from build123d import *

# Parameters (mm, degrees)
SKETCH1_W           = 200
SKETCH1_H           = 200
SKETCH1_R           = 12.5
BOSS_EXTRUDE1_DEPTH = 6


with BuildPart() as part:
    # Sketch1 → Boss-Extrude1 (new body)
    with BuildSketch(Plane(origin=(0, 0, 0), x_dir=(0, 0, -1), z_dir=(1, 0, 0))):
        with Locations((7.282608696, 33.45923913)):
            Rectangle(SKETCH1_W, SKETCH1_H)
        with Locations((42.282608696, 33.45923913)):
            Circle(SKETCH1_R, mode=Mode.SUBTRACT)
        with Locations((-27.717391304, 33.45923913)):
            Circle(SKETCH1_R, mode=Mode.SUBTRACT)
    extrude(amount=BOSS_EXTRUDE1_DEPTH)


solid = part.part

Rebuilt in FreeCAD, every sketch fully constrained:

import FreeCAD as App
import Part
import Sketcher

doc = App.newDocument("Part")
params = doc.addObject("Spreadsheet::Sheet", "Params")
for row, (alias, value) in enumerate([
    ("sketch1_diameter", "25 mm"),
    ("sketch1_width", "200 mm"),
    ("pad1_length", "6 mm"),
], start=1):
    params.set(f"A{row}", alias)
    params.set(f"B{row}", "=" + value)
    params.setAlias(f"B{row}", alias)

body = doc.addObject("PartDesign::Body", "Body")

sketch1 = body.newObject("Sketcher::SketchObject", "Sketch")
sketch1.AttachmentSupport = (doc.getObject("YZ_Plane"), [""])
sketch1.MapMode = "FlatFace"
sketch1.addGeometry([
    Part.LineSegment(App.Vector(133, 93, 0), App.Vector(-67, 93, 0)),
    Part.LineSegment(App.Vector(-67, 93, 0), App.Vector(-67, -107, 0)),
    Part.LineSegment(App.Vector(-67, -107, 0), App.Vector(133, -107, 0)),
    Part.LineSegment(App.Vector(133, -107, 0), App.Vector(133, 93, 0)),
    Part.Circle(App.Vector(33, 28, 0), App.Vector(0, 0, 1), 12),
    Part.Circle(App.Vector(33, -42, 0), App.Vector(0, 0, 1), 12),
], False)
sketch1.addConstraint([
    Sketcher.Constraint("Coincident", 0, 2, 1, 1),
    Sketcher.Constraint("Coincident", 1, 2, 2, 1),
    Sketcher.Constraint("Coincident", 2, 2, 3, 1),
    Sketcher.Constraint("Coincident", 3, 2, 0, 1),
    Sketcher.Constraint("Horizontal", 0),
    Sketcher.Constraint("Vertical", 1),
    Sketcher.Constraint("Horizontal", 2),
    Sketcher.Constraint("Vertical", 3),
    Sketcher.Constraint("Equal", 4, 5),
    Sketcher.Constraint("Vertical", 4, 3, 5, 3),
    Sketcher.Constraint("Equal", 2, 1),
    Sketcher.Constraint("Diameter", 4, 25.0),
    Sketcher.Constraint("DistanceX", 0, 2, 0, 1, 200.0),
    Sketcher.Constraint("DistanceY", 5, 3, 4, 3, 70.0),
    Sketcher.Constraint("DistanceX", 0, 2, 4, 3, 100.0),
    Sketcher.Constraint("DistanceY", 4, 3, 0, 2, 65.0),
    Sketcher.Constraint("DistanceX", -1, 1, 4, 3, 33.459239),
    Sketcher.Constraint("DistanceY", -1, 1, 4, 3, 27.717391),
])
sketch1.setExpression("Constraints[11]", "Params.sketch1_diameter")
sketch1.setExpression("Constraints[12]", "Params.sketch1_width")
pad1 = body.newObject("PartDesign::Pad", "Pad")
pad1.Profile = sketch1
pad1.setExpression("Length", "Params.pad1_length")

doc.recompute()
